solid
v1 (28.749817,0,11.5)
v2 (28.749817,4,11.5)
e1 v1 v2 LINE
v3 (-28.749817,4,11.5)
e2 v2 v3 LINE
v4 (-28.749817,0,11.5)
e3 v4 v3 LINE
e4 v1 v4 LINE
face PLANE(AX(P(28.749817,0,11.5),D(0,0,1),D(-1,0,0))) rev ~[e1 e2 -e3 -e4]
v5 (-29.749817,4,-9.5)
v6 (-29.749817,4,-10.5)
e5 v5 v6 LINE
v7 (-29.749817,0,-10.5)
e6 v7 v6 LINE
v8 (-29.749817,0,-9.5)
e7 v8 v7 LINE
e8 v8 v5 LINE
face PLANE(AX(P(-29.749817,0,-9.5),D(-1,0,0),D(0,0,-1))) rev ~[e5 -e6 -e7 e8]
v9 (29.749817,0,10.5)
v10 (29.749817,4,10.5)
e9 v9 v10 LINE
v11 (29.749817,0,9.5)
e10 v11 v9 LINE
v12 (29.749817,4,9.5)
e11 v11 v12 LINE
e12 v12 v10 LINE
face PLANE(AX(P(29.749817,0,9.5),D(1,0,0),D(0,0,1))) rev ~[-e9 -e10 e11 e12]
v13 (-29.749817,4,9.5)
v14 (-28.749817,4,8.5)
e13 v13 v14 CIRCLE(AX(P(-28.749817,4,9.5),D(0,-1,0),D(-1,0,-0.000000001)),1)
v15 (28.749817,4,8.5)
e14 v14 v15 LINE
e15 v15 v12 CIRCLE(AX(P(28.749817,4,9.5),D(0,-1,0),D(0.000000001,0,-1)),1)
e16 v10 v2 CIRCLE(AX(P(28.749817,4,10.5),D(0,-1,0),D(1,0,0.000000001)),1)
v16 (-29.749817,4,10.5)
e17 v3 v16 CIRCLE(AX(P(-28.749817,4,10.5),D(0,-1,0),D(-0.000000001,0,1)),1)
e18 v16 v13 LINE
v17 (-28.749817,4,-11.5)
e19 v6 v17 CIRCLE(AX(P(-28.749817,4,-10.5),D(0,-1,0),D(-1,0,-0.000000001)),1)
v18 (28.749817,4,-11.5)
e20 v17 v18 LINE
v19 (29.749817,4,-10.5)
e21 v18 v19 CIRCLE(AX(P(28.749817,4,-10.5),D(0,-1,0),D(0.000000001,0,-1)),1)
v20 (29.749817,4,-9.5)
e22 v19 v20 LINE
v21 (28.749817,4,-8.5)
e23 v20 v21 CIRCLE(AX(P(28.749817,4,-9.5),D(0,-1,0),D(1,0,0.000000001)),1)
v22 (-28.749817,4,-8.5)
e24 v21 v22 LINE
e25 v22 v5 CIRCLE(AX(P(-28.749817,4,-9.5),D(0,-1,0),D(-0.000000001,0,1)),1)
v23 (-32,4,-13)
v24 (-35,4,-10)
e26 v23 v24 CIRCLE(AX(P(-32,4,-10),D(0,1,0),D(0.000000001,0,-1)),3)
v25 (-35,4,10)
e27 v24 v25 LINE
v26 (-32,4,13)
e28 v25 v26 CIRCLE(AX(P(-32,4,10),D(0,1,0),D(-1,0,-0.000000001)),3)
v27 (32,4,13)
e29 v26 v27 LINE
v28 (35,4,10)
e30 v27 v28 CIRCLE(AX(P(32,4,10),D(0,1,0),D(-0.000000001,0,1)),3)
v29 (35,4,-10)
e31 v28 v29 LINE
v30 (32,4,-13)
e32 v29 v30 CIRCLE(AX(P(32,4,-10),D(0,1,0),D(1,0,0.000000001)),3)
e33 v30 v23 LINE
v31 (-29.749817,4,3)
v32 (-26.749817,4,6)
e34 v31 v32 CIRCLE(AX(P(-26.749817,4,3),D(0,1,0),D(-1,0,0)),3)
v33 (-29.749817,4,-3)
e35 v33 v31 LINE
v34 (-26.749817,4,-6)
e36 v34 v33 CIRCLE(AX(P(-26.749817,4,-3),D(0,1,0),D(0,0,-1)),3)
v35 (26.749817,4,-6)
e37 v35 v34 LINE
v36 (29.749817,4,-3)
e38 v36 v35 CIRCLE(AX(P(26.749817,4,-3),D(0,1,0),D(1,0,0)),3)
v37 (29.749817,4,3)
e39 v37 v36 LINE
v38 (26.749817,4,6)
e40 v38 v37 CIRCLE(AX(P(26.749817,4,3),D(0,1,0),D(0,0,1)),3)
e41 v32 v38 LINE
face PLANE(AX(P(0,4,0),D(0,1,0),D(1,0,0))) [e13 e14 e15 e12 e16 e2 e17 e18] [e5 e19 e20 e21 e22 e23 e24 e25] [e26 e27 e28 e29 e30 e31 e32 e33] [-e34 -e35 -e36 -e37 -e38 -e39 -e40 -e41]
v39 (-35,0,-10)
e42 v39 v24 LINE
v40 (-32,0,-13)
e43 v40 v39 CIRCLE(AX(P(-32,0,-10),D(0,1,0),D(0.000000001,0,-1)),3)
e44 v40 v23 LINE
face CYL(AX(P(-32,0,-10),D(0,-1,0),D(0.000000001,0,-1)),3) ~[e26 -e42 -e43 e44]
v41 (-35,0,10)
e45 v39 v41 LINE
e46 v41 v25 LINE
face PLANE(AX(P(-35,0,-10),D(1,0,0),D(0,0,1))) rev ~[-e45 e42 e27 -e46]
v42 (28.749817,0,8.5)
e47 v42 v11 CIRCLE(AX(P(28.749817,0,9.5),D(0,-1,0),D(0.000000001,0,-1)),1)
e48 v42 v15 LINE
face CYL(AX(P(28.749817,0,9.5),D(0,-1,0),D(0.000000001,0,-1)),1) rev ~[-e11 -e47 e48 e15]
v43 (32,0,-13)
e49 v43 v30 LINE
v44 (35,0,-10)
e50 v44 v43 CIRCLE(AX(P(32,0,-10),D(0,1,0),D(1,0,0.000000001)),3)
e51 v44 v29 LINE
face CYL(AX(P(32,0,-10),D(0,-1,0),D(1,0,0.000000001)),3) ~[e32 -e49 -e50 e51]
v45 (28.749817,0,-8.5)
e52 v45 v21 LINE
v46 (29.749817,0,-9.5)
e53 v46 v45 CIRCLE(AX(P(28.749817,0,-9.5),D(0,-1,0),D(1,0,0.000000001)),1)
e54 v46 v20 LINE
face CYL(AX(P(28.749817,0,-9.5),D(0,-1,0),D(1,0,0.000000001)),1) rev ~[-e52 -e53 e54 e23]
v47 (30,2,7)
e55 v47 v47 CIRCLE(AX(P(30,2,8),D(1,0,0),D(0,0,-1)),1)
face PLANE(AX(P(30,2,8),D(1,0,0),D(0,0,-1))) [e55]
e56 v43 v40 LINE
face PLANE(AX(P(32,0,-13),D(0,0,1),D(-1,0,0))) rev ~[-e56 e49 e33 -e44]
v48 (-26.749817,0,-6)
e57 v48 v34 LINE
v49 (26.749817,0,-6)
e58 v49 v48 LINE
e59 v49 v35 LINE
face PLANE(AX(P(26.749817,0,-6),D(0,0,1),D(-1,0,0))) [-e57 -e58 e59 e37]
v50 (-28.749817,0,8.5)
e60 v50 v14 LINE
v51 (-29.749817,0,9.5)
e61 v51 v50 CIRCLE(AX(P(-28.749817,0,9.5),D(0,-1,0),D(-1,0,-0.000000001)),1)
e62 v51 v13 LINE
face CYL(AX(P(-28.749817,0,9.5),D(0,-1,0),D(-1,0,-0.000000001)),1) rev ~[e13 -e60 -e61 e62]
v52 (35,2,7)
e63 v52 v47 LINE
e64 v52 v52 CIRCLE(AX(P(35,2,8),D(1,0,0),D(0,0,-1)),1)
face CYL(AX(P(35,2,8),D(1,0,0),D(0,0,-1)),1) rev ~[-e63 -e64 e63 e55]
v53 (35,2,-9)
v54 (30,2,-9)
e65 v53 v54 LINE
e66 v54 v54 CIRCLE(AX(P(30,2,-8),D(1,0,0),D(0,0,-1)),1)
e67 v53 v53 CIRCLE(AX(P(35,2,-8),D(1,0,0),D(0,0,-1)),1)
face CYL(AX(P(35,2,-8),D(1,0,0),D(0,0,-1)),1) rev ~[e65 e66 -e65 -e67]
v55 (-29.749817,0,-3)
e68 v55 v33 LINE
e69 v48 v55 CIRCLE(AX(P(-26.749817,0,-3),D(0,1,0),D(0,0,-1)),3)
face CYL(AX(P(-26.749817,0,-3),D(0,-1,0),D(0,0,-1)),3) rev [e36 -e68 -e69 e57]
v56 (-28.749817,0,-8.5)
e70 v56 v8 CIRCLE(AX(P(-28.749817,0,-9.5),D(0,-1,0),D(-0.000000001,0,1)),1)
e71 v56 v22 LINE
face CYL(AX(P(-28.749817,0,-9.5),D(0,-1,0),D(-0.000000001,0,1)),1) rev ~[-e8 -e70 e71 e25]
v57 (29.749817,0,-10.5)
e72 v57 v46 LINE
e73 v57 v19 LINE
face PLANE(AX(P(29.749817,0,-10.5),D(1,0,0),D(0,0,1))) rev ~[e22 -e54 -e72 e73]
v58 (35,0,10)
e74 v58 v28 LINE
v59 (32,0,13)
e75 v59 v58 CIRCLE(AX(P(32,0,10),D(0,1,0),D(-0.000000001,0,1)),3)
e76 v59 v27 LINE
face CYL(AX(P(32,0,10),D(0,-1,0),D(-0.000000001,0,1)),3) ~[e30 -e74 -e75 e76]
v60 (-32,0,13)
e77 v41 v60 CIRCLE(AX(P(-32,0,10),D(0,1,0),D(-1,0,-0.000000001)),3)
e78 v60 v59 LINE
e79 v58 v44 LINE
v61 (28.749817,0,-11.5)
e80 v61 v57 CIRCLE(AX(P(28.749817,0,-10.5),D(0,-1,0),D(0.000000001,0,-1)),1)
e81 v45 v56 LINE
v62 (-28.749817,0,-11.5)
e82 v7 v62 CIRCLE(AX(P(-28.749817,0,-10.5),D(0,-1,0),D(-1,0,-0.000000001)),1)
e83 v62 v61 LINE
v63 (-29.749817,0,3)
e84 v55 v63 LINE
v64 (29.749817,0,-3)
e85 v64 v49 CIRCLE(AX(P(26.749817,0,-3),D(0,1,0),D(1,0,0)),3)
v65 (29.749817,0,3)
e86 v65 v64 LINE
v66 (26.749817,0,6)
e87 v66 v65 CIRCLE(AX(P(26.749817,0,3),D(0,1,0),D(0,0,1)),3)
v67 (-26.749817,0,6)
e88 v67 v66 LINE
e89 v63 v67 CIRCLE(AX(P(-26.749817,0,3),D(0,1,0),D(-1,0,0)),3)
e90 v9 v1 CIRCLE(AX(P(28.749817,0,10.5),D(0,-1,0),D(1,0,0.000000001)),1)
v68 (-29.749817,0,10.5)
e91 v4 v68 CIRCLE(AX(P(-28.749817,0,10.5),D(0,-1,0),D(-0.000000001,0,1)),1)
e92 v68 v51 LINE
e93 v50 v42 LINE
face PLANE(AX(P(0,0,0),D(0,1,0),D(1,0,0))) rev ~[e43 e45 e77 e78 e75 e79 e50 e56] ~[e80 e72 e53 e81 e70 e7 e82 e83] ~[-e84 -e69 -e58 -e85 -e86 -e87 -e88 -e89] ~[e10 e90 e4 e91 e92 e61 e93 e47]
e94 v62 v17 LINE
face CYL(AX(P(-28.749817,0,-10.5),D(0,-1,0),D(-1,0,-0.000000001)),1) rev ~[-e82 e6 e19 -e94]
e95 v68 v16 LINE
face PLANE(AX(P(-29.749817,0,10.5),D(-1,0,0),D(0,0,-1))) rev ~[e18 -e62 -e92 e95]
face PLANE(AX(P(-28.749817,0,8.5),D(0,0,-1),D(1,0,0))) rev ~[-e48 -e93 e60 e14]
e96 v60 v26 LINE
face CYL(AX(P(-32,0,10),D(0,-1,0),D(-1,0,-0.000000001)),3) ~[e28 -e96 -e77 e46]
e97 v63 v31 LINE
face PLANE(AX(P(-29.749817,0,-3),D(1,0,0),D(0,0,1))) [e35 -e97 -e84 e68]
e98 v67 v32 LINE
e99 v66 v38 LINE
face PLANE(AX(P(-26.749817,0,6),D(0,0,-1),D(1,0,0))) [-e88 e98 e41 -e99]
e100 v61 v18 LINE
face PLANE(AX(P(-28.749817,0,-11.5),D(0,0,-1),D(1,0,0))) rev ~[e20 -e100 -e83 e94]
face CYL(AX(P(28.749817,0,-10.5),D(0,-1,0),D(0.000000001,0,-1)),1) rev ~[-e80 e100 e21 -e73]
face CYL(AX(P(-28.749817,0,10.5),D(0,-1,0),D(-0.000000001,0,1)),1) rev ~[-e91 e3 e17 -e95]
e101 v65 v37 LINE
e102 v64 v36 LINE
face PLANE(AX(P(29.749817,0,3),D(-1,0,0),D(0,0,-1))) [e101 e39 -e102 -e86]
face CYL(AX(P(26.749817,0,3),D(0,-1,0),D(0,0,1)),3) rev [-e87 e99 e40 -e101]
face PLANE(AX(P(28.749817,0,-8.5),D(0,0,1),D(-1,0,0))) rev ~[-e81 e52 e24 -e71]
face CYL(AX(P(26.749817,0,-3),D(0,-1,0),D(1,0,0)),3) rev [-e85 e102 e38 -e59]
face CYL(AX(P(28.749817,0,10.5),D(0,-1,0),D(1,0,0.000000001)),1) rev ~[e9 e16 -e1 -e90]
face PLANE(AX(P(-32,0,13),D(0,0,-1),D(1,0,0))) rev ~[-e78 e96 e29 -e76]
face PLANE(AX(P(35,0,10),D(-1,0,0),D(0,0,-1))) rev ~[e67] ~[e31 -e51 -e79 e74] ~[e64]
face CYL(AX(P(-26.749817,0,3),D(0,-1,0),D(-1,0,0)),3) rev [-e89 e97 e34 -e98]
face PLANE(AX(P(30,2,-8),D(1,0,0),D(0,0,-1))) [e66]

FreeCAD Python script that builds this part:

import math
import FreeCAD as App
import Part
import Sketcher

V = App.Vector

doc = App.newDocument("Part")
params = doc.addObject("Spreadsheet::Sheet", "Params")
for row, (alias, value) in enumerate([
    ("sketch1_radius", "3 mm"),
    ("sketch1_radius2", "1 mm"),
    ("sketch1_width", "64 mm"),
    ("sketch1_height", "20 mm"),
    ("sketch1_height2", "1 mm"),
    ("pad1_length", "4 mm"),
    ("sketch2_diameter", "2 mm"),
    ("pocket1_length", "5 mm"),
], start=1):
    params.set(f"A{row}", alias)
    params.set(f"B{row}", "=" + value)
    params.setAlias(f"B{row}", alias)

body = doc.addObject("PartDesign::Body", "Body")

sketch1 = body.newObject("Sketcher::SketchObject", "Sketch")
sketch1.AttachmentSupport = (doc.getObject("XZ_Plane"), [""])
sketch1.MapMode = "FlatFace"
sketch1.addGeometry(Part.LineSegment(V(-32, 13, 0), V(32, 13, 0)), False)
sketch1.addGeometry(Part.ArcOfCircle(Part.Circle(V(32, 10, 0), V(0, 0, 1), 3), math.radians(0), math.radians(90)), False)
sketch1.addGeometry(Part.LineSegment(V(35, 10, 0), V(35, -10, 0)), False)
sketch1.addGeometry(Part.ArcOfCircle(Part.Circle(V(32, -10, 0), V(0, 0, 1), 3), math.radians(-90), math.radians(0)), False)
sketch1.addGeometry(Part.LineSegment(V(32, -13, 0), V(-32, -13, 0)), False)
sketch1.addGeometry(Part.ArcOfCircle(Part.Circle(V(-32, -10, 0), V(0, 0, 1), 3), math.radians(180), math.radians(270)), False)
sketch1.addGeometry(Part.LineSegment(V(-35, -10, 0), V(-35, 10, 0)), False)
sketch1.addGeometry(Part.ArcOfCircle(Part.Circle(V(-32, 10, 0), V(0, 0, 1), 3), math.radians(90), math.radians(180)), False)
sketch1.addGeometry(Part.ArcOfCircle(Part.Circle(V(-28.7, 10.5, 0), V(0, 0, 1), 1), math.radians(90), math.radians(180)), False)
sketch1.addGeometry(Part.LineSegment(V(-29.7, 10.5, 0), V(-29.7, 9.5, 0)), False)
sketch1.addGeometry(Part.ArcOfCircle(Part.Circle(V(-28.7, 9.5, 0), V(0, 0, 1), 1), math.radians(-180), math.radians(-90)), False)
sketch1.addGeometry(Part.LineSegment(V(-28.7, 8.5, 0), V(28.7, 8.5, 0)), False)
sketch1.addGeometry(Part.ArcOfCircle(Part.Circle(V(28.7, 9.5, 0), V(0, 0, 1), 1), math.radians(-90), math.radians(0)), False)
sketch1.addGeometry(Part.LineSegment(V(29.7, 9.5, 0), V(29.7, 10.5, 0)), False)
sketch1.addGeometry(Part.ArcOfCircle(Part.Circle(V(28.7, 10.5, 0), V(0, 0, 1), 1), math.radians(0), math.radians(90)), False)
sketch1.addGeometry(Part.LineSegment(V(28.7, 11.5, 0), V(-28.7, 11.5, 0)), False)
sketch1.addGeometry(Part.LineSegment(V(26.7, 6, 0), V(-26.7, 6, 0)), False)
sketch1.addGeometry(Part.ArcOfCircle(Part.Circle(V(-26.7, 3, 0), V(0, 0, 1), 3), math.radians(90), math.radians(180)), False)
sketch1.addGeometry(Part.LineSegment(V(-29.7, 3, 0), V(-29.7, -3, 0)), False)
sketch1.addGeometry(Part.ArcOfCircle(Part.Circle(V(-26.7, -3, 0), V(0, 0, 1), 3), math.radians(180), math.radians(270)), False)
sketch1.addGeometry(Part.LineSegment(V(-26.7, -6, 0), V(26.7, -6, 0)), False)
sketch1.addGeometry(Part.ArcOfCircle(Part.Circle(V(26.7, -3, 0), V(0, 0, 1), 3), math.radians(-90), math.radians(0)), False)
sketch1.addGeometry(Part.LineSegment(V(29.7, -3, 0), V(29.7, 3, 0)), False)
sketch1.addGeometry(Part.ArcOfCircle(Part.Circle(V(26.7, 3, 0), V(0, 0, 1), 3), math.radians(0), math.radians(90)), False)
sketch1.addGeometry(Part.ArcOfCircle(Part.Circle(V(-28.7, -10.5, 0), V(0, 0, 1), 1), math.radians(-180), math.radians(-90)), False)
sketch1.addGeometry(Part.LineSegment(V(-28.7, -11.5, 0), V(28.7, -11.5, 0)), False)
sketch1.addGeometry(Part.ArcOfCircle(Part.Circle(V(28.7, -10.5, 0), V(0, 0, 1), 1), math.radians(-90), math.radians(0)), False)
sketch1.addGeometry(Part.LineSegment(V(29.7, -10.5, 0), V(29.7, -9.5, 0)), False)
sketch1.addGeometry(Part.ArcOfCircle(Part.Circle(V(28.7, -9.5, 0), V(0, 0, 1), 1), math.radians(0), math.radians(90)), False)
sketch1.addGeometry(Part.LineSegment(V(28.7, -8.5, 0), V(-28.7, -8.5, 0)), False)
sketch1.addGeometry(Part.ArcOfCircle(Part.Circle(V(-28.7, -9.5, 0), V(0, 0, 1), 1), math.radians(90), math.radians(180)), False)
sketch1.addGeometry(Part.LineSegment(V(-29.7, -9.5, 0), V(-29.7, -10.5, 0)), False)
sketch1.addConstraint(Sketcher.Constraint("Tangent", 0, 2, 1, 2))
sketch1.addConstraint(Sketcher.Constraint("Tangent", 1, 1, 2, 1))
sketch1.addConstraint(Sketcher.Constraint("Tangent", 2, 2, 3, 2))
sketch1.addConstraint(Sketcher.Constraint("Tangent", 3, 1, 4, 1))
sketch1.addConstraint(Sketcher.Constraint("Tangent", 4, 2, 5, 2))
sketch1.addConstraint(Sketcher.Constraint("Tangent", 5, 1, 6, 1))
sketch1.addConstraint(Sketcher.Constraint("Tangent", 6, 2, 7, 2))
sketch1.addConstraint(Sketcher.Constraint("Tangent", 7, 1, 0, 1))
sketch1.addConstraint(Sketcher.Constraint("Tangent", 8, 2, 9, 1))
sketch1.addConstraint(Sketcher.Constraint("Tangent", 9, 2, 10, 1))
sketch1.addConstraint(Sketcher.Constraint("Tangent", 10, 2, 11, 1))
sketch1.addConstraint(Sketcher.Constraint("Tangent", 11, 2, 12, 1))
sketch1.addConstraint(Sketcher.Constraint("Tangent", 12, 2, 13, 1))
sketch1.addConstraint(Sketcher.Constraint("Tangent", 13, 2, 14, 1))
sketch1.addConstraint(Sketcher.Constraint("Tangent", 14, 2, 15, 1))
sketch1.addConstraint(Sketcher.Constraint("Tangent", 15, 2, 8, 1))
sketch1.addConstraint(Sketcher.Constraint("Tangent", 16, 2, 17, 1))
sketch1.addConstraint(Sketcher.Constraint("Tangent", 17, 2, 18, 1))
sketch1.addConstraint(Sketcher.Constraint("Tangent", 18, 2, 19, 1))
sketch1.addConstraint(Sketcher.Constraint("Tangent", 19, 2, 20, 1))
sketch1.addConstraint(Sketcher.Constraint("Tangent", 20, 2, 21, 1))
sketch1.addConstraint(Sketcher.Constraint("Tangent", 21, 2, 22, 1))
sketch1.addConstraint(Sketcher.Constraint("Tangent", 22, 2, 23, 1))
sketch1.addConstraint(Sketcher.Constraint("Tangent", 23, 2, 16, 1))
sketch1.addConstraint(Sketcher.Constraint("Tangent", 24, 2, 25, 1))
sketch1.addConstraint(Sketcher.Constraint("Tangent", 25, 2, 26, 1))
sketch1.addConstraint(Sketcher.Constraint("Tangent", 26, 2, 27, 1))
sketch1.addConstraint(Sketcher.Constraint("Tangent", 27, 2, 28, 1))
sketch1.addConstraint(Sketcher.Constraint("Tangent", 28, 2, 29, 1))
sketch1.addConstraint(Sketcher.Constraint("Tangent", 29, 2, 30, 1))
sketch1.addConstraint(Sketcher.Constraint("Tangent", 30, 2, 31, 1))
sketch1.addConstraint(Sketcher.Constraint("Tangent", 31, 2, 24, 1))
sketch1.addConstraint(Sketcher.Constraint("Horizontal", 0))
sketch1.addConstraint(Sketcher.Constraint("Vertical", 2))
sketch1.addConstraint(Sketcher.Constraint("Horizontal", 4))
sketch1.addConstraint(Sketcher.Constraint("Vertical", 6))
sketch1.addConstraint(Sketcher.Constraint("Vertical", 9))
sketch1.addConstraint(Sketcher.Constraint("Horizontal", 11))
sketch1.addConstraint(Sketcher.Constraint("Vertical", 13))
sketch1.addConstraint(Sketcher.Constraint("Horizontal", 15))
sketch1.addConstraint(Sketcher.Constraint("Horizontal", 16))
sketch1.addConstraint(Sketcher.Constraint("Vertical", 18))
sketch1.addConstraint(Sketcher.Constraint("Horizontal", 20))
sketch1.addConstraint(Sketcher.Constraint("Vertical", 22))
sketch1.addConstraint(Sketcher.Constraint("Horizontal", 25))
sketch1.addConstraint(Sketcher.Constraint("Vertical", 27))
sketch1.addConstraint(Sketcher.Constraint("Horizontal", 29))
sketch1.addConstraint(Sketcher.Constraint("Vertical", 31))
sketch1.addConstraint(Sketcher.Constraint("Equal", 1, 3))
sketch1.addConstraint(Sketcher.Constraint("Equal", 3, 5))
sketch1.addConstraint(Sketcher.Constraint("Equal", 5, 7))
sketch1.addConstraint(Sketcher.Constraint("Equal", 8, 10))
sketch1.addConstraint(Sketcher.Constraint("Equal", 10, 12))
sketch1.addConstraint(Sketcher.Constraint("Equal", 12, 14))
sketch1.addConstraint(Sketcher.Constraint("Equal", 7, 17))
sketch1.addConstraint(Sketcher.Constraint("Equal", 17, 19))
sketch1.addConstraint(Sketcher.Constraint("Equal", 19, 21))
sketch1.addConstraint(Sketcher.Constraint("Equal", 21, 23))
sketch1.addConstraint(Sketcher.Constraint("Equal", 14, 24))
sketch1.addConstraint(Sketcher.Constraint("Equal", 24, 26))
sketch1.addConstraint(Sketcher.Constraint("Equal", 26, 28))
sketch1.addConstraint(Sketcher.Constraint("Equal", 28, 30))
sketch1.addConstraint(Sketcher.Constraint("Symmetric", 1, 3, 5, 3, -1, 1))
sketch1.addConstraint(Sketcher.Constraint("Symmetric", 17, 3, 21, 3, -1, 1))
sketch1.addConstraint(Sketcher.Constraint("Symmetric", 14, 3, 24, 3, -1, 1))
sketch1.addConstraint(Sketcher.Constraint("Symmetric", 10, 3, 28, 3, -1, 1))
sketch1.addConstraint(Sketcher.Constraint("Vertical", 10, 3, 24, 3))
sketch1.addConstraint(Sketcher.Constraint("Vertical", 9, 2, 17, 2))
sketch1.addConstraint(Sketcher.Constraint("Radius", 1, 3.0))
sketch1.addConstraint(Sketcher.Constraint("Radius", 8, 1.0))
sketch1.addConstraint(Sketcher.Constraint("DistanceX", 0, 1, 0, 2, 64.0))
sketch1.addConstraint(Sketcher.Constraint("DistanceY", 2, 2, 2, 1, 20.0))
sketch1.addConstraint(Sketcher.Constraint("DistanceY", 9, 2, 9, 1, 1.0))
sketch1.addConstraint(Sketcher.Constraint("DistanceY", 18, 2, 18, 1, 6.0))
sketch1.addConstraint(Sketcher.Constraint("DistanceY", 24, 3, 10, 3, 20.0))
sketch1.addConstraint(Sketcher.Constraint("DistanceX", 11, 1, 11, 2, 57.499634))
sketch1.setExpression("Constraints[68]", "Params.sketch1_radius")
sketch1.setExpression("Constraints[69]", "Params.sketch1_radius2")
sketch1.setExpression("Constraints[70]", "Params.sketch1_width")
sketch1.setExpression("Constraints[71]", "Params.sketch1_height")
sketch1.setExpression("Constraints[72]", "Params.sketch1_height2")
pad1 = body.newObject("PartDesign::Pad", "Pad")
pad1.Profile = sketch1
pad1.setExpression("Length", "Params.pad1_length")
pad1.Reversed = True

sketch2 = body.newObject("Sketcher::SketchObject", "Sketch001")
sketch2.AttachmentSupport = (doc.getObject("YZ_Plane"), [""])
sketch2.MapMode = "FlatFace"
sketch2.AttachmentOffset = App.Placement(V(0, 0, 35), App.Rotation())
sketch2.addGeometry(Part.Circle(V(2, 8, 0), V(0, 0, 1), 1), False)
sketch2.addGeometry(Part.Circle(V(2, -8, 0), V(0, 0, 1), 1), False)
sketch2.addConstraint(Sketcher.Constraint("Equal", 0, 1))
sketch2.addConstraint(Sketcher.Constraint("Symmetric", 0, 3, 1, 3, -1))
sketch2.addConstraint(Sketcher.Constraint("Diameter", 0, 2.0))
sketch2.addConstraint(Sketcher.Constraint("DistanceX", -1, 1, 0, 3, 2.0))
sketch2.addConstraint(Sketcher.Constraint("DistanceY", -1, 1, 0, 3, 8.0))
sketch2.setExpression("Constraints[2]", "Params.sketch2_diameter")
pocket1 = body.newObject("PartDesign::Pocket", "Pocket")
pocket1.Profile = sketch2
pocket1.setExpression("Length", "Params.pocket1_length")

doc.recompute()
